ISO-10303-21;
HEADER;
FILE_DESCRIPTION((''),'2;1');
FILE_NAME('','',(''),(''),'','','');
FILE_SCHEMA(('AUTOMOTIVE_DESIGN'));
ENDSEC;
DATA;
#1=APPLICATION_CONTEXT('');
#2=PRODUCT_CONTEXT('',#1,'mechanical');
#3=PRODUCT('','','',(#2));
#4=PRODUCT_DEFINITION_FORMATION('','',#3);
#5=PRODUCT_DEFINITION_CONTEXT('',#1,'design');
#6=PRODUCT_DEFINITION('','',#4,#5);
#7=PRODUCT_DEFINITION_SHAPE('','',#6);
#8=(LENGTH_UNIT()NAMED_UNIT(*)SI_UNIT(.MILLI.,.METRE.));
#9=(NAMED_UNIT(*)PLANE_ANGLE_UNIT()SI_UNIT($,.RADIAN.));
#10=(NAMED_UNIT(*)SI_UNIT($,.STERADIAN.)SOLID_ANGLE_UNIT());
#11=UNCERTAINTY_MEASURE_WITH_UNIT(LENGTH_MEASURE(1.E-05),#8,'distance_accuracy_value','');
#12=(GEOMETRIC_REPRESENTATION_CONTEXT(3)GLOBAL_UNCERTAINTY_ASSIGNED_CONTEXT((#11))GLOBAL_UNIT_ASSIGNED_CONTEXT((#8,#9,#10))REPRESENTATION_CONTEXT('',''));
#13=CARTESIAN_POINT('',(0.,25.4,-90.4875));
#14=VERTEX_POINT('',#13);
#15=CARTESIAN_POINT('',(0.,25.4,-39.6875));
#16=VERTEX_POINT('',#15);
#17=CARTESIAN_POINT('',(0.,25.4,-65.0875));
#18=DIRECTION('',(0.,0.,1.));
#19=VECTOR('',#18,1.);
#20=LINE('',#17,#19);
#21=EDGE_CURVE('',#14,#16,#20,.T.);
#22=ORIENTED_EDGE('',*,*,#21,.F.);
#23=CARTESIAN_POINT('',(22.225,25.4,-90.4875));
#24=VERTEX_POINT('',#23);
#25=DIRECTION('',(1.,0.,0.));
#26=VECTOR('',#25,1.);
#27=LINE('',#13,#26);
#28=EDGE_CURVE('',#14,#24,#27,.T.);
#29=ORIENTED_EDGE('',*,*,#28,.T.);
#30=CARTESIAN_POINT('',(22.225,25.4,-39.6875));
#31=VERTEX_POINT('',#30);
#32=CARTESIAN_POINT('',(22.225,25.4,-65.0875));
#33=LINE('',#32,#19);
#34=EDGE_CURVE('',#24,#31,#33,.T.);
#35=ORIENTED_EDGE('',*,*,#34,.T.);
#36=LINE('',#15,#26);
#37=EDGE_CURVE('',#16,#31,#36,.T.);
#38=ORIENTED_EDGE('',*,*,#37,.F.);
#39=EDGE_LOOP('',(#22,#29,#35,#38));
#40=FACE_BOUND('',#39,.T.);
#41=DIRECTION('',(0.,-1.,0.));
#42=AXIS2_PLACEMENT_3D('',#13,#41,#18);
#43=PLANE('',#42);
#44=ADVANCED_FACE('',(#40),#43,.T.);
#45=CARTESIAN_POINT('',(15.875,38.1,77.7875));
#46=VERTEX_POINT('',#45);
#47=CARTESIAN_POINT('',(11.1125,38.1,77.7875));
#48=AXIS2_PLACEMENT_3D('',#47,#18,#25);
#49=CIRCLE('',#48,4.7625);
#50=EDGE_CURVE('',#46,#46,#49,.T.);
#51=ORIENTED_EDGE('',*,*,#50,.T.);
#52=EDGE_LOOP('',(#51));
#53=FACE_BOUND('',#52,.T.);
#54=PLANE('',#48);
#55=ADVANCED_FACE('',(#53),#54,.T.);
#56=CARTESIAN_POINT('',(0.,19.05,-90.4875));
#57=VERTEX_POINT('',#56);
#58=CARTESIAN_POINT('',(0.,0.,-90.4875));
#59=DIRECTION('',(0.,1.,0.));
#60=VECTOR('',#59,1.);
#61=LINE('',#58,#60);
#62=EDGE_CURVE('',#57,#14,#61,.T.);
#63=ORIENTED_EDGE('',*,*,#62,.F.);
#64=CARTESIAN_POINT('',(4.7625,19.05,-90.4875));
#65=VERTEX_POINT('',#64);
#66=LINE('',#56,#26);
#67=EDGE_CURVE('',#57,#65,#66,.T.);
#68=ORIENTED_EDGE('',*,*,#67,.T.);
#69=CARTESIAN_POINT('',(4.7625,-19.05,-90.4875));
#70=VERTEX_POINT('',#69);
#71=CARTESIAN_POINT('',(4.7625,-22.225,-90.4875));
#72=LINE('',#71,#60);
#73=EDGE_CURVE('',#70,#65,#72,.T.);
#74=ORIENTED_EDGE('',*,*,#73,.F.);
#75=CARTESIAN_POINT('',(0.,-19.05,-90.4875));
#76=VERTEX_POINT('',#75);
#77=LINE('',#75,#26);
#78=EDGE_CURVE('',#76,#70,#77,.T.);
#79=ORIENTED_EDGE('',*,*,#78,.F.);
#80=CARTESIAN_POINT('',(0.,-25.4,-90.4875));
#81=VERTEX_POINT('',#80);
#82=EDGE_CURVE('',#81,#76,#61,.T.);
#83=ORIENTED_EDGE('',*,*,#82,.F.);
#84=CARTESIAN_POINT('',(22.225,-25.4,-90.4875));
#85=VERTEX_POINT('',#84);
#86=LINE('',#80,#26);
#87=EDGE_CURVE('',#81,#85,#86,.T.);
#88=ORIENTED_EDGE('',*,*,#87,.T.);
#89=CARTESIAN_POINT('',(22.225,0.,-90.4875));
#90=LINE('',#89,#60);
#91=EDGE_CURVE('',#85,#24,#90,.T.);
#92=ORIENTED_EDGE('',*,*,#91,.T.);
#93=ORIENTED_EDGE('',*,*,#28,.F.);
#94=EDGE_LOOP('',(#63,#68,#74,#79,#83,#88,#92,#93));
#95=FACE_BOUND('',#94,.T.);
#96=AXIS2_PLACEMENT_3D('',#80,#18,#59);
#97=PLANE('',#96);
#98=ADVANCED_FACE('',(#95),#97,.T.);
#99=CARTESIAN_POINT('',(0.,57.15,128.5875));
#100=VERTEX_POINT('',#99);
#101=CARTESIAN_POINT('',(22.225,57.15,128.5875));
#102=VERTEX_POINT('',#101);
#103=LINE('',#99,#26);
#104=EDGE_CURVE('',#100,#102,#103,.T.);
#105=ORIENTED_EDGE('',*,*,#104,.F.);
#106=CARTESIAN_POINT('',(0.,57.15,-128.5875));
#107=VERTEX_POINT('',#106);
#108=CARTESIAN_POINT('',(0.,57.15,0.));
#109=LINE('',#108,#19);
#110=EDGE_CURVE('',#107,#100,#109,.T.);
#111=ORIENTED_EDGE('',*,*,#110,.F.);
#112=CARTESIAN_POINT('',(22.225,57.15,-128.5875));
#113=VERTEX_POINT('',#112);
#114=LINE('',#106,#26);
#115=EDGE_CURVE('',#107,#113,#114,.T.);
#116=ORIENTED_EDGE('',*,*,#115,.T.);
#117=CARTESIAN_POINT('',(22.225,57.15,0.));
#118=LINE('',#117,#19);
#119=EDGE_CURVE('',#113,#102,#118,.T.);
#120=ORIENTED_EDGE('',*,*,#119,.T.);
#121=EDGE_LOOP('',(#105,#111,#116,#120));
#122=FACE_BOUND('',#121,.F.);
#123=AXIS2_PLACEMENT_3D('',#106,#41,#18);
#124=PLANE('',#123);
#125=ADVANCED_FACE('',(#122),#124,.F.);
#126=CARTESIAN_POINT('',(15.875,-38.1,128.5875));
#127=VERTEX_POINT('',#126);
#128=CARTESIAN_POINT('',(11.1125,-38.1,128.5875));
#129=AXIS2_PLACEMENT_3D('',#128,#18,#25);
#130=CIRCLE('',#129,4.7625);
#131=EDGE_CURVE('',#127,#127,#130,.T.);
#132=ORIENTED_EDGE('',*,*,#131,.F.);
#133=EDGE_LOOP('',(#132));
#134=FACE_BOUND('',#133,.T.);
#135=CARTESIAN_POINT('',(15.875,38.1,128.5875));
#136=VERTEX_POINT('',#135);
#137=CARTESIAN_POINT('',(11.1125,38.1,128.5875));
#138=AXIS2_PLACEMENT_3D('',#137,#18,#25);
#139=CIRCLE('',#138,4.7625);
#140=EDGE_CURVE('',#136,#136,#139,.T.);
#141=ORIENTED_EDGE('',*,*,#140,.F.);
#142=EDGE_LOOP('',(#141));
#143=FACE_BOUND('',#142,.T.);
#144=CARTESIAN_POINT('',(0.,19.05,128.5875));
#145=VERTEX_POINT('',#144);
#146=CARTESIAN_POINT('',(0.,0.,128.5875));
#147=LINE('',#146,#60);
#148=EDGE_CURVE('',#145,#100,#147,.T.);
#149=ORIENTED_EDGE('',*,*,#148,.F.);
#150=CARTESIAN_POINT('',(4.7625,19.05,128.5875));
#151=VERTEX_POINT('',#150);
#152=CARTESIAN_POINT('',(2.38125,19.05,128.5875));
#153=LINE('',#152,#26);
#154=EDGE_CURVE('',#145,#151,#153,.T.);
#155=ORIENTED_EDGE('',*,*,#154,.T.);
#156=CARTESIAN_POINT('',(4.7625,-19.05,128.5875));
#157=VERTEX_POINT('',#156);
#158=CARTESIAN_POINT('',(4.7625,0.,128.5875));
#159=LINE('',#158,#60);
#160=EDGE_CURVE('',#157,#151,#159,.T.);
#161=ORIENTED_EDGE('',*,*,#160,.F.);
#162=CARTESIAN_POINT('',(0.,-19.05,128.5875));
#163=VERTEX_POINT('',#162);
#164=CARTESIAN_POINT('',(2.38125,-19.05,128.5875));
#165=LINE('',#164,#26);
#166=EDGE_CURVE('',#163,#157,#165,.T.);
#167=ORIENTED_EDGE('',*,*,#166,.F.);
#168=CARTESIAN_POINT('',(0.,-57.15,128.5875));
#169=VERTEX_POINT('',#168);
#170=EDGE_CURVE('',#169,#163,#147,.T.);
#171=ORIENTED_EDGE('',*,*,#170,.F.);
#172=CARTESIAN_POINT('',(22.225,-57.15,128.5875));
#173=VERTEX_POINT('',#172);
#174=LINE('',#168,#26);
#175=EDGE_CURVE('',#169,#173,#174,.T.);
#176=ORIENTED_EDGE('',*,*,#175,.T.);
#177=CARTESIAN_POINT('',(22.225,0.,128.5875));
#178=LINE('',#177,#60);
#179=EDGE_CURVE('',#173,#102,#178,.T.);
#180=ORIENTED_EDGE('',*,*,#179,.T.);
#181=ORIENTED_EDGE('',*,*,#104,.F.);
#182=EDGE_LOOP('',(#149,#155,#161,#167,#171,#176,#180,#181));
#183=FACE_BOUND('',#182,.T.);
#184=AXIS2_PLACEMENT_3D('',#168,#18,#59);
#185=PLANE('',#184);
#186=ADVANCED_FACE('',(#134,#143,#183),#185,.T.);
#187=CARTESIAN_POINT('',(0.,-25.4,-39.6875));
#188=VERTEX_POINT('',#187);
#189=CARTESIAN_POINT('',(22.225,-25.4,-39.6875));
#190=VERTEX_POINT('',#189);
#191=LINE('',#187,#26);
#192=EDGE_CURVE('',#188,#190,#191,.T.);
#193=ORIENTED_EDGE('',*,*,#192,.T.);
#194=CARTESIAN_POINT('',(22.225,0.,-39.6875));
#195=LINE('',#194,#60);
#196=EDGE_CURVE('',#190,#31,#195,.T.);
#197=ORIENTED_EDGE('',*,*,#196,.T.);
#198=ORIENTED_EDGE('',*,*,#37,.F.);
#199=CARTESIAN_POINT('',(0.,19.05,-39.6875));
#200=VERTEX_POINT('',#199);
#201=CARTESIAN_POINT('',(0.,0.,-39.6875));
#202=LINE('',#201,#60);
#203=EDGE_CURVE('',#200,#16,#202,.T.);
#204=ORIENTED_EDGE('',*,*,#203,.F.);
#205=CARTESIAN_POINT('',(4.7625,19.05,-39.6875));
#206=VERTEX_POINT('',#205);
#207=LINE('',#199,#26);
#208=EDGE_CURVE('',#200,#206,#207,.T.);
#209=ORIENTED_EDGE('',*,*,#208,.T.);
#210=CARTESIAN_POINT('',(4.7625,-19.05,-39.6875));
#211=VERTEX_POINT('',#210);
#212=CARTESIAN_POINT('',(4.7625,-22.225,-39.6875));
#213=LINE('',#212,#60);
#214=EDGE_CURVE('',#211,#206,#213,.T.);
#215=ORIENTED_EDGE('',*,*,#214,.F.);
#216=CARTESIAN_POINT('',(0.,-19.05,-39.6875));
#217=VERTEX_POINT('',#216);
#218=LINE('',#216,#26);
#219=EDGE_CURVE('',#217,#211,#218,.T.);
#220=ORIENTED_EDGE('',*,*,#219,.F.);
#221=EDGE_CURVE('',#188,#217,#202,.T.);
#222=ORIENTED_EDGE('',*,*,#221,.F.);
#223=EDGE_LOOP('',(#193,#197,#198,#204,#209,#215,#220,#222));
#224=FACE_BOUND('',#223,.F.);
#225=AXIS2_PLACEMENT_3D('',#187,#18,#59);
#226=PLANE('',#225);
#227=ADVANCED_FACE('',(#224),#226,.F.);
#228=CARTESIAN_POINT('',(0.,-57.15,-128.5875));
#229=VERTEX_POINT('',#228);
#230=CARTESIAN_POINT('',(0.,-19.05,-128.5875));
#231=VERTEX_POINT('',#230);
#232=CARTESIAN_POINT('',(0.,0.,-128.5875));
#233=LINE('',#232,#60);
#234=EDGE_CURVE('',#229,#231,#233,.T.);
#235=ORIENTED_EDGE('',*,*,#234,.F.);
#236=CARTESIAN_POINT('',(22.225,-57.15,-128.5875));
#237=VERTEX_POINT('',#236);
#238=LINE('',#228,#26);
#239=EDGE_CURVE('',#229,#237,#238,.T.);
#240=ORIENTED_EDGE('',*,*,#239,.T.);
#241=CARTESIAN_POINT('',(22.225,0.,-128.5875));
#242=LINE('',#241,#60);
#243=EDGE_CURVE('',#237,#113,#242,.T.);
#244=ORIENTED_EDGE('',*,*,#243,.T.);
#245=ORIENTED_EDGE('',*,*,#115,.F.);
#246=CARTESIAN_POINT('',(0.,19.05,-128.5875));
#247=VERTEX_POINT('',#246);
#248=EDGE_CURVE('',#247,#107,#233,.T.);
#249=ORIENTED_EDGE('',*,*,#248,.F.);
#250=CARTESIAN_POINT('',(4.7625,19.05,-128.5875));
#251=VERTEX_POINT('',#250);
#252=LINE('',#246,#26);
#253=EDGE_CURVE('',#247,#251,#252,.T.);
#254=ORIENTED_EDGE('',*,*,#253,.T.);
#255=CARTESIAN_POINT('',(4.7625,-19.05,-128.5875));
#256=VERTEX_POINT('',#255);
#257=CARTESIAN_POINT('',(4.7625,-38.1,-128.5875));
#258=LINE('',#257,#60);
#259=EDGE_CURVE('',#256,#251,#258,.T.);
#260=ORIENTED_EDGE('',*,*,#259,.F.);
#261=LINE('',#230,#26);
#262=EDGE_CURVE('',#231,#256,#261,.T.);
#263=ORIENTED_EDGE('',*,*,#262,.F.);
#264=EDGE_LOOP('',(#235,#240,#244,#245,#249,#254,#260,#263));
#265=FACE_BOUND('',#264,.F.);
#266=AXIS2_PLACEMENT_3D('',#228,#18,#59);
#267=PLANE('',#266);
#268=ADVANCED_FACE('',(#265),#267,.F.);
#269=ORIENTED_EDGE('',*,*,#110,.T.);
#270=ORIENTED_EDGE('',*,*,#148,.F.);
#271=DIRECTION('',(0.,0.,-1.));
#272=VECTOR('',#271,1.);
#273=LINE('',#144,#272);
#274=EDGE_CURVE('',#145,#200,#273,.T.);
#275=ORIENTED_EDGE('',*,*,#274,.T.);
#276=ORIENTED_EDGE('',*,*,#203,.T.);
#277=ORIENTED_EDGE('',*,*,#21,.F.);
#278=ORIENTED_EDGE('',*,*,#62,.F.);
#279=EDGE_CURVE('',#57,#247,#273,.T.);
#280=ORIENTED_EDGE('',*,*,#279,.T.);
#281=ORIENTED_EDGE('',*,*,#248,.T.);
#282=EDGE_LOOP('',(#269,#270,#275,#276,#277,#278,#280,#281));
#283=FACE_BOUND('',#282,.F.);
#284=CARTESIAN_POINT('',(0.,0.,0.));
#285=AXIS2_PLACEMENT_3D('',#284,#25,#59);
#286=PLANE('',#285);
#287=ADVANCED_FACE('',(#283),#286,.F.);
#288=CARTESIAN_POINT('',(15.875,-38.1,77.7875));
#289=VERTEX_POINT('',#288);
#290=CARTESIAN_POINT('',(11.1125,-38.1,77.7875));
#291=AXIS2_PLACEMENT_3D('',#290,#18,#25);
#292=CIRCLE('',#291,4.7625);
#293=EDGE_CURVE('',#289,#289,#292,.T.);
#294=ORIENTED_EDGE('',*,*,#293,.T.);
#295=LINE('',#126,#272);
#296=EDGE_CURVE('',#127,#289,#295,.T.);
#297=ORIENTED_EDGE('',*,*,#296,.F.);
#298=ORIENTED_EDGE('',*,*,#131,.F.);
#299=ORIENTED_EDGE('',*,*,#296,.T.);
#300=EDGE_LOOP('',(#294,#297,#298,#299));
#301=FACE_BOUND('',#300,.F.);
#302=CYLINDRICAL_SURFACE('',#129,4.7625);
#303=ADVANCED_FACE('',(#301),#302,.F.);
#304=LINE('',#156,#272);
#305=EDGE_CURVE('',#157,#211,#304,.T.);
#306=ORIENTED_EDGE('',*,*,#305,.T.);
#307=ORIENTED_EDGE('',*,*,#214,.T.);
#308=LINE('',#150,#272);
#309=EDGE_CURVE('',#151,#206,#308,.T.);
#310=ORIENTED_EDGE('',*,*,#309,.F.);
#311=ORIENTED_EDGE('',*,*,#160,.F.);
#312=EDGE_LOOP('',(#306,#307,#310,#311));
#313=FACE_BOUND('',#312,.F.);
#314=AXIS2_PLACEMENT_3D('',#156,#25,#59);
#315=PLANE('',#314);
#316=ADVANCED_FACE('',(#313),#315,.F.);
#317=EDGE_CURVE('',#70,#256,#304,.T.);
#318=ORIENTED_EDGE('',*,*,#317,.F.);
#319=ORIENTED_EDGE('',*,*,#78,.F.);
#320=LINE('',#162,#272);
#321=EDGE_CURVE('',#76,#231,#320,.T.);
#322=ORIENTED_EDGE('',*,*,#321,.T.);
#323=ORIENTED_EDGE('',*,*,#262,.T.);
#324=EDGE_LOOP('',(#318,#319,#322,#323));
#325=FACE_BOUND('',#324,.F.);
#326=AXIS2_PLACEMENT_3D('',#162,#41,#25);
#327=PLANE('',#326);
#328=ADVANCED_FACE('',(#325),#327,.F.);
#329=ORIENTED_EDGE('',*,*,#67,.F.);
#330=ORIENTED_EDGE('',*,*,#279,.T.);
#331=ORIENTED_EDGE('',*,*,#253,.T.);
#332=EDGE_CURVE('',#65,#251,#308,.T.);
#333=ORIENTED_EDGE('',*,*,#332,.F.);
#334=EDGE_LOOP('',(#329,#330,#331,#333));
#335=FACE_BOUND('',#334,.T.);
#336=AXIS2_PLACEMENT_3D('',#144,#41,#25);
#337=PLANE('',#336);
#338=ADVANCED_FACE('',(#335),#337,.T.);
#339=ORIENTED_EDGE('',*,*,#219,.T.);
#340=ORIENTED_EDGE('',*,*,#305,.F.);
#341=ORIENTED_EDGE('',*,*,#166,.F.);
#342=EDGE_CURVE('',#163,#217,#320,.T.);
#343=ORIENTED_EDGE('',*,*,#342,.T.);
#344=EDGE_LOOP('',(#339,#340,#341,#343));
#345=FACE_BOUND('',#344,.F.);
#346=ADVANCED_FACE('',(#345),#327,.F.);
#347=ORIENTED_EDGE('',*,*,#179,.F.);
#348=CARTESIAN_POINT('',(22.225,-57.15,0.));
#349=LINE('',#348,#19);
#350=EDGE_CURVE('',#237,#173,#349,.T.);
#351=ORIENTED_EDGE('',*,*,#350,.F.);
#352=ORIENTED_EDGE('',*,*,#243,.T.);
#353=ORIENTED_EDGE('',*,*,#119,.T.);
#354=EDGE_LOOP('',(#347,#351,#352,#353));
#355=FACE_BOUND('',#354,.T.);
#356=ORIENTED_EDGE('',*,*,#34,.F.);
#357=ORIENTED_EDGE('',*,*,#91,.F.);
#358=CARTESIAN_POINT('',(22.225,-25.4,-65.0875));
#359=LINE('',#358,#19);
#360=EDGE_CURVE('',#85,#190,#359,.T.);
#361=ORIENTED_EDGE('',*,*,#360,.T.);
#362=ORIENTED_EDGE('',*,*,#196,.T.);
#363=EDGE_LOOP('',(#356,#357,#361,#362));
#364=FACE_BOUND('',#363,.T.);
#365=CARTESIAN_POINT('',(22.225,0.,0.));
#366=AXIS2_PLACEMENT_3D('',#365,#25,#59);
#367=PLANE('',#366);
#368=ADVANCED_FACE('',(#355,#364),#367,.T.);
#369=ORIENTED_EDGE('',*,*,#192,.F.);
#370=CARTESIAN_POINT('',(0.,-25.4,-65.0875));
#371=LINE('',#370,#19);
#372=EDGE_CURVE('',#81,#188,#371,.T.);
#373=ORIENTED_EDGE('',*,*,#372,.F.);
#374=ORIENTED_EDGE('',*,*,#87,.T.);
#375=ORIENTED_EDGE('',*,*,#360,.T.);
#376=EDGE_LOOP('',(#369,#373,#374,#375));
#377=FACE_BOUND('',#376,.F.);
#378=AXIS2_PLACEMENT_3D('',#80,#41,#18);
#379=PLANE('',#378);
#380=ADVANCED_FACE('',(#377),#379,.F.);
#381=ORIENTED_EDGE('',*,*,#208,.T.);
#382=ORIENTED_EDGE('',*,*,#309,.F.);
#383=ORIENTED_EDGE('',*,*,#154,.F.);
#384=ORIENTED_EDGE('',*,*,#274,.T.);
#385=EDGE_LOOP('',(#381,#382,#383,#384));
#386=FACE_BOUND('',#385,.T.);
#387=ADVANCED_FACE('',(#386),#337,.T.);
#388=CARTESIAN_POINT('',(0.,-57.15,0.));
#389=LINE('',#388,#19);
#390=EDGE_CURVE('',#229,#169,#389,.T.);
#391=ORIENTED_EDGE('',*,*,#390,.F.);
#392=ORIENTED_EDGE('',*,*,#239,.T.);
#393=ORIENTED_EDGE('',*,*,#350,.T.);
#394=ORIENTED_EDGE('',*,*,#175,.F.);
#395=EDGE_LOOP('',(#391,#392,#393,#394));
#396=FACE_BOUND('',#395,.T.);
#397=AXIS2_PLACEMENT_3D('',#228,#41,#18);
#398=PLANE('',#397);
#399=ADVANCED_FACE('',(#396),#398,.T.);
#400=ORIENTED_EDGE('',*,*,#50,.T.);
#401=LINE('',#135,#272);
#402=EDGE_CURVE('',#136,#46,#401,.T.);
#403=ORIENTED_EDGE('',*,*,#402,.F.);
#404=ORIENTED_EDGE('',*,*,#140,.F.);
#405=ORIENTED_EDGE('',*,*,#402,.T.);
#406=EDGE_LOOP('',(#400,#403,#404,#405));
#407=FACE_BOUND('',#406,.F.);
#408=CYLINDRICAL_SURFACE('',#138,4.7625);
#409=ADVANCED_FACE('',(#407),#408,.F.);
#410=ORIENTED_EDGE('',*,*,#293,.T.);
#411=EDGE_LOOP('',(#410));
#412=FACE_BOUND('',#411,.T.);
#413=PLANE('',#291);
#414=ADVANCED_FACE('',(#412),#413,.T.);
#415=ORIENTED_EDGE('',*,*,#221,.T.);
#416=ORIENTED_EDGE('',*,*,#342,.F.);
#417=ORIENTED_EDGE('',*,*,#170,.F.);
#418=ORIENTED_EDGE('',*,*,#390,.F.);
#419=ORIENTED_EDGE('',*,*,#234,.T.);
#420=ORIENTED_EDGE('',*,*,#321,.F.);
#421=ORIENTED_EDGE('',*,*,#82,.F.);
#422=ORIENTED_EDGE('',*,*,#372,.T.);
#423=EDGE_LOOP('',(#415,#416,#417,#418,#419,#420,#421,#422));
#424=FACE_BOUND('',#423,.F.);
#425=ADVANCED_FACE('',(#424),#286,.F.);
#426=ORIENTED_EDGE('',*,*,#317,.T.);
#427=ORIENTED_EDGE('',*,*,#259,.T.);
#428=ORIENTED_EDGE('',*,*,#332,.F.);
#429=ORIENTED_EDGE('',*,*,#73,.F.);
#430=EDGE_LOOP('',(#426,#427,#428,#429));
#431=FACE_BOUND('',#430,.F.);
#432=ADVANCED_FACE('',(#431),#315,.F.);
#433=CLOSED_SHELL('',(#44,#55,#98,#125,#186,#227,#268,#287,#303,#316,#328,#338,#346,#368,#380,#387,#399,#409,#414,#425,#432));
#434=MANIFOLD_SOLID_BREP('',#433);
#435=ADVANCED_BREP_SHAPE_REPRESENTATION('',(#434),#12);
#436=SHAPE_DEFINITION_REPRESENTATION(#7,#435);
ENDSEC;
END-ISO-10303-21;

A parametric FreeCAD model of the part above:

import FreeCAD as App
import Part
import Sketcher
from FreeCAD import Vector
Q = App.Units.Quantity

doc = App.newDocument("Part")
body = doc.addObject("PartDesign::Body", "Body")

sketch1 = body.newObject("Sketcher::SketchObject", "Sketch")
sketch1.AttachmentSupport = (doc.getObject("YZ_Plane"), [""])
sketch1.MapMode = "FlatFace"
sketch1.addGeometry(Part.LineSegment(Vector(-57.15, 128.5875, 0), Vector(-57.15, -128.5875, 0)), False)
sketch1.addGeometry(Part.LineSegment(Vector(-57.15, -128.5875, 0), Vector(57.15, -128.5875, 0)), False)
sketch1.addGeometry(Part.LineSegment(Vector(57.15, -128.5875, 0), Vector(57.15, 128.5875, 0)), False)
sketch1.addGeometry(Part.LineSegment(Vector(57.15, 128.5875, 0), Vector(-57.15, 128.5875, 0)), False)
sketch1.addGeometry(Part.LineSegment(Vector(25.4, -90.4875, 0), Vector(-25.4, -90.4875, 0)), False)
sketch1.addGeometry(Part.LineSegment(Vector(-25.4, -90.4875, 0), Vector(-25.4, -39.6875, 0)), False)
sketch1.addGeometry(Part.LineSegment(Vector(-25.4, -39.6875, 0), Vector(25.4, -39.6875, 0)), False)
sketch1.addGeometry(Part.LineSegment(Vector(25.4, -39.6875, 0), Vector(25.4, -90.4875, 0)), False)
sketch1.addConstraint(Sketcher.Constraint("Coincident", 0, 2, 1, 1))
sketch1.addConstraint(Sketcher.Constraint("Coincident", 1, 2, 2, 1))
sketch1.addConstraint(Sketcher.Constraint("Coincident", 2, 2, 3, 1))
sketch1.addConstraint(Sketcher.Constraint("Coincident", 3, 2, 0, 1))
sketch1.addConstraint(Sketcher.Constraint("Coincident", 4, 2, 5, 1))
sketch1.addConstraint(Sketcher.Constraint("Coincident", 5, 2, 6, 1))
sketch1.addConstraint(Sketcher.Constraint("Coincident", 6, 2, 7, 1))
sketch1.addConstraint(Sketcher.Constraint("Coincident", 7, 2, 4, 1))
sketch1.addConstraint(Sketcher.Constraint("Vertical", 0))
sketch1.addConstraint(Sketcher.Constraint("Horizontal", 1))
sketch1.addConstraint(Sketcher.Constraint("Vertical", 2))
sketch1.addConstraint(Sketcher.Constraint("Horizontal", 3))
sketch1.addConstraint(Sketcher.Constraint("Horizontal", 4))
sketch1.addConstraint(Sketcher.Constraint("Vertical", 5))
sketch1.addConstraint(Sketcher.Constraint("Horizontal", 6))
sketch1.addConstraint(Sketcher.Constraint("Vertical", 7))
sketch1.addConstraint(Sketcher.Constraint("Symmetric", 0, 2, 2, 2, -1, 1))
sketch1.addConstraint(Sketcher.Constraint("Equal", 6, 5))
sketch1.addConstraint(Sketcher.Constraint("DistanceX", 4, 2, 4, 1, Q("2 in")))
sketch1.addConstraint(Sketcher.Constraint("DistanceX", 1, 1, 1, 2, Q("4.5 in")))
sketch1.addConstraint(Sketcher.Constraint("DistanceX", 4, 2, -1, 1, Q("1 in")))
sketch1.addConstraint(Sketcher.Constraint("DistanceY", 0, 2, 4, 2, Q("1.5 in")))
sketch1.addConstraint(Sketcher.Constraint("DistanceY", 0, 2, 0, 1, Q("10.125 in")))
pad1 = body.newObject("PartDesign::Pad", "Pad")
pad1.Profile = sketch1
pad1.Length = Q("0.875 in")

sketch2 = body.newObject("Sketcher::SketchObject", "Sketch001")
sketch2.AttachmentSupport = (doc.getObject("XY_Plane"), [""])
sketch2.MapMode = "FlatFace"
sketch2.AttachmentOffset = App.Placement(Vector(0, 0, 5.0625 * 25.4), App.Rotation())
sketch2.addGeometry(Part.LineSegment(Vector(0, 19.05, 0), Vector(0, -19.05, 0)), False)
sketch2.addGeometry(Part.LineSegment(Vector(0, -19.05, 0), Vector(4.7625, -19.05, 0)), False)
sketch2.addGeometry(Part.LineSegment(Vector(4.7625, -19.05, 0), Vector(4.7625, 19.05, 0)), False)
sketch2.addGeometry(Part.LineSegment(Vector(4.7625, 19.05, 0), Vector(0, 19.05, 0)), False)
sketch2.addConstraint(Sketcher.Constraint("Coincident", 0, 2, 1, 1))
sketch2.addConstraint(Sketcher.Constraint("Coincident", 1, 2, 2, 1))
sketch2.addConstraint(Sketcher.Constraint("Coincident", 2, 2, 3, 1))
sketch2.addConstraint(Sketcher.Constraint("Coincident", 3, 2, 0, 1))
sketch2.addConstraint(Sketcher.Constraint("Vertical", 0))
sketch2.addConstraint(Sketcher.Constraint("Horizontal", 1))
sketch2.addConstraint(Sketcher.Constraint("Vertical", 2))
sketch2.addConstraint(Sketcher.Constraint("Horizontal", 3))
sketch2.addConstraint(Sketcher.Constraint("Symmetric", 0, 2, 3, 2, -1, 1))
sketch2.addConstraint(Sketcher.Constraint("DistanceY", 0, 2, 0, 1, Q("1.5 in")))
sketch2.addConstraint(Sketcher.Constraint("DistanceX", 1, 1, 1, 2, Q("0.1875 in")))
pocket1 = body.newObject("PartDesign::Pocket", "Pocket")
pocket1.Profile = sketch2
pocket1.Type = "ThroughAll"

sketch3 = body.newObject("Sketcher::SketchObject", "Sketch002")
sketch3.AttachmentSupport = (doc.getObject("XY_Plane"), [""])
sketch3.MapMode = "FlatFace"
sketch3.AttachmentOffset = App.Placement(Vector(0, 0, 5.0625 * 25.4), App.Rotation())
sketch3.addGeometry(Part.Circle(Vector(11.1125, -38.1, 0), Vector(0, 0, 1), 4.7625), False)
sketch3.addGeometry(Part.Circle(Vector(11.1125, 38.1, 0), Vector(0, 0, 1), 4.7625), False)
sketch3.addConstraint(Sketcher.Constraint("Equal", 0, 1))
sketch3.addConstraint(Sketcher.Constraint("Symmetric", 0, 3, 1, 3, -1))
sketch3.addConstraint(Sketcher.Constraint("Diameter", 0, Q("0.375 in")))
sketch3.addConstraint(Sketcher.Constraint("DistanceY", 0, 3, 1, 3, Q("3 in")))
sketch3.addConstraint(Sketcher.Constraint("DistanceX", -1, 1, 0, 3, Q("0.4375 in")))
pocket2 = body.newObject("PartDesign::Pocket", "Pocket001")
pocket2.Profile = sketch3
pocket2.Length = Q("2 in")

doc.recompute()
